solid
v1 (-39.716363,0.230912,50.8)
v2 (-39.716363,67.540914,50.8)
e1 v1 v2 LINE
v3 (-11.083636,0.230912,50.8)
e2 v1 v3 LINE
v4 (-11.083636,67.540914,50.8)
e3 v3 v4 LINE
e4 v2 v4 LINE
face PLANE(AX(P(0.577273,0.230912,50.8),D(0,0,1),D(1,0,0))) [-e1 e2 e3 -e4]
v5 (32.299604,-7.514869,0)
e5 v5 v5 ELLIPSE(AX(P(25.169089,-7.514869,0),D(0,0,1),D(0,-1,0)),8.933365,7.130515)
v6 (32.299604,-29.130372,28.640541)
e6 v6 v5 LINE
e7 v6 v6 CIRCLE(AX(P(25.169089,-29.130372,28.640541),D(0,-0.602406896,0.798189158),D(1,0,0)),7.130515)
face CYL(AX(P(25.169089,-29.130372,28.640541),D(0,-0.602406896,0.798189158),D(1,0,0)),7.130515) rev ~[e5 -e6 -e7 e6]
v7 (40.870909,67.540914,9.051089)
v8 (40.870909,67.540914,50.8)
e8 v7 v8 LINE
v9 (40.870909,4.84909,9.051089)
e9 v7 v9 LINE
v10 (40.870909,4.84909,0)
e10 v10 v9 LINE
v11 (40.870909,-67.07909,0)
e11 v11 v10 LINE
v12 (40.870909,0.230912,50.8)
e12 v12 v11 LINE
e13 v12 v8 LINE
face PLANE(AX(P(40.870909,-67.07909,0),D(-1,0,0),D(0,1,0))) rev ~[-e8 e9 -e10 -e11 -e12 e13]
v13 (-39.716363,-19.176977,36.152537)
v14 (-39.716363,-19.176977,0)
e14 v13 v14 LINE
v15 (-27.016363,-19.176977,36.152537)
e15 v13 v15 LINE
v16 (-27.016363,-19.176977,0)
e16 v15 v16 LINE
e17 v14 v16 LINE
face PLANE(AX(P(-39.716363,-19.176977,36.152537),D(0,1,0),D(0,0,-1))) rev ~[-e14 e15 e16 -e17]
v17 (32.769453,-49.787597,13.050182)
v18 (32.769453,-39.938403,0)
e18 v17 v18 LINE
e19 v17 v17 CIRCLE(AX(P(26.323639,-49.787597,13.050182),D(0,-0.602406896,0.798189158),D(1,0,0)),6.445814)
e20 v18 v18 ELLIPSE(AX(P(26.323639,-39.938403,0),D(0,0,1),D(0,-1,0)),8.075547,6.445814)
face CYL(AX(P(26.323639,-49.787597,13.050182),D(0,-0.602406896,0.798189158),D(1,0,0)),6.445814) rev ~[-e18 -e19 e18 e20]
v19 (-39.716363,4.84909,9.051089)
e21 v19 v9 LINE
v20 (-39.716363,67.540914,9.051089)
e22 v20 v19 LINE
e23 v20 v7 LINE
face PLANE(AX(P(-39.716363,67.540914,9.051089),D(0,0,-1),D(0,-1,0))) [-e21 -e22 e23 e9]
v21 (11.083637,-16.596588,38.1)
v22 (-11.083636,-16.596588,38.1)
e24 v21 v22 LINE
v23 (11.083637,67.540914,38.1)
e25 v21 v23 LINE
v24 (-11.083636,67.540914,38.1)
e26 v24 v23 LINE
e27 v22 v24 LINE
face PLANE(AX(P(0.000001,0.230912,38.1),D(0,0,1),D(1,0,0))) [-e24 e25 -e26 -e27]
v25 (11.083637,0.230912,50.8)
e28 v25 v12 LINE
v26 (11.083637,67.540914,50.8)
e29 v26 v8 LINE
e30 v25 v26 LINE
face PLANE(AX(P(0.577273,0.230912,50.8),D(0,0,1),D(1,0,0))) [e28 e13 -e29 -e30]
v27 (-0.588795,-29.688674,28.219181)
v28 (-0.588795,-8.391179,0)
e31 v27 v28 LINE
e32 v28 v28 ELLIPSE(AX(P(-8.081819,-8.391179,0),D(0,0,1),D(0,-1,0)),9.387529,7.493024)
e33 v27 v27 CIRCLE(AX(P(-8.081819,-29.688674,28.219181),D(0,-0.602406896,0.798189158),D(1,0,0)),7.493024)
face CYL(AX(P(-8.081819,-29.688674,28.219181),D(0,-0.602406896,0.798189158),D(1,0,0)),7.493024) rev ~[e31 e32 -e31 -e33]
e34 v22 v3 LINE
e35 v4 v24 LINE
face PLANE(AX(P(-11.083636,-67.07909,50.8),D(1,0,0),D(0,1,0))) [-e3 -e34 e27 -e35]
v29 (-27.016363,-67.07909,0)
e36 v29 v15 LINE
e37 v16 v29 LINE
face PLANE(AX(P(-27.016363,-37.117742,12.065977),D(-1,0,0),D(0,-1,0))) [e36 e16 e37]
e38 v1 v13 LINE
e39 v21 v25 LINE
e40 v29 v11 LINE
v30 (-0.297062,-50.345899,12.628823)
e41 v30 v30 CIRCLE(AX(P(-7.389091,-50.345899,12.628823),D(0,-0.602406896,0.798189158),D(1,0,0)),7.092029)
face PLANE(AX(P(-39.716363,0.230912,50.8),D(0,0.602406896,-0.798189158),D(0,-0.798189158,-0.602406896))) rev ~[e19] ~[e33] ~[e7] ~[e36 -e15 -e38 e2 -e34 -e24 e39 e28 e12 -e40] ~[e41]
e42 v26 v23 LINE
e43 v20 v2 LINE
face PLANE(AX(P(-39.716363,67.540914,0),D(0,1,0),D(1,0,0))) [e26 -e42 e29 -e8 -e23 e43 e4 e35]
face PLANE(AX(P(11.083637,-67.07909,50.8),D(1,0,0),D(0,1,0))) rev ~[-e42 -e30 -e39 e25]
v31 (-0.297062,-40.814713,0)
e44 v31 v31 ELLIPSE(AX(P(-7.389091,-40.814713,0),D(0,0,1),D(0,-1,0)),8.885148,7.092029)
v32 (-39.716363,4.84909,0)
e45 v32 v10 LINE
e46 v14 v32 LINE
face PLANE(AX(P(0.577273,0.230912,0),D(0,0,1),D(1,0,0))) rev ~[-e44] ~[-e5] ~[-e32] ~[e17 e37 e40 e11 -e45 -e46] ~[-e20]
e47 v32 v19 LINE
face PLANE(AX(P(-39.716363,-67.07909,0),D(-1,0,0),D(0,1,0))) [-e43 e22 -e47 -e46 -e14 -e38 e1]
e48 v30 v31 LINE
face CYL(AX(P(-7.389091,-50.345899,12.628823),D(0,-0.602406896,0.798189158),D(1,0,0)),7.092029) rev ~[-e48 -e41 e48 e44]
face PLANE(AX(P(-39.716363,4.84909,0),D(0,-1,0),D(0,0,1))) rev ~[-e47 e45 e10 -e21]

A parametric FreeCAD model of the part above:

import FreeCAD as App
import Part
import Sketcher

V = App.Vector
Q = App.Units.Quantity


def add_polygon(sketch, points):
    """Adds a closed chain of lines whose ends are joined by coincident constraints."""
    first, n = sketch.GeometryCount, len(points)
    for a, b in zip(points, points[1:] + points[:1]):
        sketch.addGeometry(Part.LineSegment(App.Vector(*a, 0), App.Vector(*b, 0)), False)
    for i in range(n):
        sketch.addConstraint(Sketcher.Constraint("Coincident", first + i, 2, first + (i + 1) % n, 1))

doc = App.newDocument("Part")
body = doc.addObject("PartDesign::Body", "Body")

sketch1 = doc.addObject("Sketcher::SketchObject", "Sketch")
body.addObject(sketch1)
sketch1.AttachmentSupport = (doc.XY_Plane, [""])
sketch1.MapMode = "FlatFace"
add_polygon(sketch1, [(-40, 68), (-40, -67), (41, -67), (41, 68)])
sketch1.addConstraint([
    Sketcher.Constraint("Vertical", 0),
    Sketcher.Constraint("Horizontal", 1),
    Sketcher.Constraint("Vertical", 2),
    Sketcher.Constraint("Horizontal", 3),
    Sketcher.Constraint("DistanceY", 0, 2, 0, 1, Q("5.3000001 in")),
    Sketcher.Constraint("DistanceX", 1, 1, 1, 2, Q("80.587272 mm")),
    Sketcher.Constraint("DistanceY", 0, 2, -1, 1, Q("67.07909 mm")),
    Sketcher.Constraint("DistanceX", -1, 1, 1, 2, Q("40.870909 mm")),
])
pad1 = doc.addObject("PartDesign::Pad", "Pad")
body.addObject(pad1)
pad1.Profile = sketch1
pad1.Length = Q("2 in")

sketch2 = doc.addObject("Sketcher::SketchObject", "Sketch001")
body.addObject(sketch2)
sketch2.AttachmentSupport = (doc.XY_Plane, [""])
sketch2.MapMode = "FlatFace"
sketch2.AttachmentOffset = App.Placement(V(0, 0, 2 * 25.4), App.Rotation())
add_polygon(sketch2, [(-11, 68), (-11, -67), (11, -67), (11, 68)])
sketch2.addConstraint([
    Sketcher.Constraint("Vertical", 0),
    Sketcher.Constraint("Horizontal", 1),
    Sketcher.Constraint("Vertical", 2),
    Sketcher.Constraint("Horizontal", 3),
    Sketcher.Constraint("DistanceY", 0, 2, 0, 1, Q("5.3000001 in")),
    Sketcher.Constraint("DistanceX", 1, 1, 1, 2, Q("22.167273 mm")),
    Sketcher.Constraint("DistanceY", 0, 2, -1, 1, Q("67.07909 mm")),
    Sketcher.Constraint("DistanceX", 0, 2, -1, 1, Q("11.083636 mm")),
])
pocket1 = doc.addObject("PartDesign::Pocket", "Pocket")
body.addObject(pocket1)
pocket1.Profile = sketch2
pocket1.Length = Q("0.5 in")

sketch3 = doc.addObject("Sketcher::SketchObject", "Sketch002")
body.addObject(sketch3)
sketch3.AttachmentSupport = (doc.YZ_Plane, [""])
sketch3.MapMode = "FlatFace"
sketch3.AttachmentOffset = App.Placement(V(0, 0, -39.716363), App.Rotation())
add_polygon(sketch3, [(-67, 51), (0, 51), (-67, 0)])
sketch3.addConstraint([
    Sketcher.Constraint("Horizontal", 0),
    Sketcher.Constraint("Vertical", 2),
    Sketcher.Constraint("PointOnObject", 1, 2, -1),
    Sketcher.Constraint("DistanceY", 2, 1, 2, 2, Q("2 in")),
    Sketcher.Constraint("DistanceX", 0, 1, 0, 2, Q("2.6500001 in")),
    Sketcher.Constraint("DistanceX", 1, 2, -1, 1, Q("67.07909 mm")),
])
pocket2 = doc.addObject("PartDesign::Pocket", "Pocket001")
body.addObject(pocket2)
pocket2.Profile = sketch3
pocket2.Type = "ThroughAll"
pocket2.Reversed = True

sketch4 = doc.addObject("Sketcher::SketchObject", "Sketch003")
body.addObject(sketch4)
sketch4.Placement = App.Placement(V(0, -24.342604, 32.253951), App.Rotation(V(1, 0, 0), V(0, 0.798189158, 0.602406896), V(0, -0.602406896, 0.798189158), "ZXY"))
sketch4.addGeometry(Part.Circle(V(-8, -7, 0), V(0, 0, 1), 7), False)
sketch4.addConstraint([
    Sketcher.Constraint("Diameter", 0, Q("14.986047 mm")),
    Sketcher.Constraint("DistanceX", 0, 3, -1, 1, Q("8.081819 mm")),
    Sketcher.Constraint("DistanceY", 0, 3, -1, 1, Q("6.697748 mm")),
])
pocket3 = doc.addObject("PartDesign::Pocket", "Pocket002")
body.addObject(pocket3)
pocket3.Profile = sketch4
pocket3.Type = "ThroughAll"

sketch5 = doc.addObject("Sketcher::SketchObject", "Sketch004")
body.addObject(sketch5)
sketch5.Placement = App.Placement(V(0, -24.342604, 32.253951), App.Rotation(V(1, 0, 0), V(0, 0.798189158, 0.602406896), V(0, -0.602406896, 0.798189158), "ZXY"))
sketch5.addGeometry(Part.Circle(V(-7, -33, 0), V(0, 0, 1), 7), False)
sketch5.addConstraint([
    Sketcher.Constraint("Diameter", 0, Q("14.184058 mm")),
    Sketcher.Constraint("DistanceX", 0, 3, -1, 1, Q("7.389091 mm")),
    Sketcher.Constraint("DistanceY", 0, 3, -1, 1, Q("32.577861 mm")),
])
pocket4 = doc.addObject("PartDesign::Pocket", "Pocket003")
body.addObject(pocket4)
pocket4.Profile = sketch5
pocket4.Type = "ThroughAll"

sketch6 = doc.addObject("Sketcher::SketchObject", "Sketch005")
body.addObject(sketch6)
sketch6.Placement = App.Placement(V(0, -24.342604, 32.253951), App.Rotation(V(1, 0, 0), V(0, 0.798189158, 0.602406896), V(0, -0.602406896, 0.798189158), "ZXY"))
sketch6.addGeometry(Part.Circle(V(25, -6, 0), V(0, 0, 1), 7), False)
sketch6.addConstraint([
    Sketcher.Constraint("Diameter", 0, Q("14.26103 mm")),
    Sketcher.Constraint("DistanceX", -1, 1, 0, 3, Q("25.169089 mm")),
    Sketcher.Constraint("DistanceY", 0, 3, -1, 1, Q("5.998287 mm")),
])
pocket5 = doc.addObject("PartDesign::Pocket", "Pocket004")
body.addObject(pocket5)
pocket5.Profile = sketch6
pocket5.Type = "ThroughAll"

sketch7 = doc.addObject("Sketcher::SketchObject", "Sketch006")
body.addObject(sketch7)
sketch7.Placement = App.Placement(V(0, -24.342604, 32.253951), App.Rotation(V(1, 0, 0), V(0, 0.798189158, 0.602406896), V(0, -0.602406896, 0.798189158), "ZXY"))
sketch7.addGeometry(Part.Circle(V(26, -32, 0), V(0, 0, 1), 6), False)
sketch7.addConstraint([
    Sketcher.Constraint("Diameter", 0, Q("12.891628 mm")),
    Sketcher.Constraint("DistanceY", 0, 3, -1, 1, Q("31.878401 mm")),
    Sketcher.Constraint("DistanceX", -1, 1, 0, 3, Q("26.323639 mm")),
])
pocket6 = doc.addObject("PartDesign::Pocket", "Pocket005")
body.addObject(pocket6)
pocket6.Profile = sketch7
pocket6.Type = "ThroughAll"

sketch8 = doc.addObject("Sketcher::SketchObject", "Sketch007")
body.addObject(sketch8)
sketch8.AttachmentSupport = (doc.YZ_Plane, [""])
sketch8.MapMode = "FlatFace"
sketch8.AttachmentOffset = App.Placement(V(0, 0, -39.716363), App.Rotation())
add_polygon(sketch8, [(-67, 0), (-19, 36), (-19, 0)])
sketch8.addConstraint([
    Sketcher.Constraint("Vertical", 1),
    Sketcher.Constraint("Horizontal", 2),
    Sketcher.Constraint("PointOnObject", 1, 2, -1),
    Sketcher.Constraint("DistanceX", 2, 2, 2, 1, Q("47.902112 mm")),
    Sketcher.Constraint("DistanceY", 1, 2, 1, 1, Q("36.152537 mm")),
    Sketcher.Constraint("DistanceX", 2, 2, -1, 1, Q("67.07909 mm")),
])
pocket7 = doc.addObject("PartDesign::Pocket", "Pocket006")
body.addObject(pocket7)
pocket7.Profile = sketch8
pocket7.Length = Q("0.5 in")
pocket7.Reversed = True

sketch9 = doc.addObject("Sketcher::SketchObject", "Sketch008")
body.addObject(sketch9)
sketch9.AttachmentSupport = (doc.YZ_Plane, [""])
sketch9.MapMode = "FlatFace"
sketch9.AttachmentOffset = App.Placement(V(0, 0, -39.716363), App.Rotation())
add_polygon(sketch9, [(68, 9), (68, 0), (5, 0), (5, 9)])
sketch9.addConstraint([
    Sketcher.Constraint("Vertical", 0),
    Sketcher.Constraint("Horizontal", 1),
    Sketcher.Constraint("Vertical", 2),
    Sketcher.Constraint("Horizontal", 3),
    Sketcher.Constraint("PointOnObject", 0, 2, -1),
    Sketcher.Constraint("DistanceY", 0, 2, 0, 1, Q("9.051089 mm")),
    Sketcher.Constraint("DistanceX", 1, 2, 1, 1, Q("62.691824 mm")),
    Sketcher.Constraint("DistanceX", -1, 1, 1, 2, Q("4.84909 mm")),
])
pocket8 = doc.addObject("PartDesign::Pocket", "Pocket007")
body.addObject(pocket8)
pocket8.Profile = sketch9
pocket8.Type = "ThroughAll"
pocket8.Reversed = True

doc.recompute()
